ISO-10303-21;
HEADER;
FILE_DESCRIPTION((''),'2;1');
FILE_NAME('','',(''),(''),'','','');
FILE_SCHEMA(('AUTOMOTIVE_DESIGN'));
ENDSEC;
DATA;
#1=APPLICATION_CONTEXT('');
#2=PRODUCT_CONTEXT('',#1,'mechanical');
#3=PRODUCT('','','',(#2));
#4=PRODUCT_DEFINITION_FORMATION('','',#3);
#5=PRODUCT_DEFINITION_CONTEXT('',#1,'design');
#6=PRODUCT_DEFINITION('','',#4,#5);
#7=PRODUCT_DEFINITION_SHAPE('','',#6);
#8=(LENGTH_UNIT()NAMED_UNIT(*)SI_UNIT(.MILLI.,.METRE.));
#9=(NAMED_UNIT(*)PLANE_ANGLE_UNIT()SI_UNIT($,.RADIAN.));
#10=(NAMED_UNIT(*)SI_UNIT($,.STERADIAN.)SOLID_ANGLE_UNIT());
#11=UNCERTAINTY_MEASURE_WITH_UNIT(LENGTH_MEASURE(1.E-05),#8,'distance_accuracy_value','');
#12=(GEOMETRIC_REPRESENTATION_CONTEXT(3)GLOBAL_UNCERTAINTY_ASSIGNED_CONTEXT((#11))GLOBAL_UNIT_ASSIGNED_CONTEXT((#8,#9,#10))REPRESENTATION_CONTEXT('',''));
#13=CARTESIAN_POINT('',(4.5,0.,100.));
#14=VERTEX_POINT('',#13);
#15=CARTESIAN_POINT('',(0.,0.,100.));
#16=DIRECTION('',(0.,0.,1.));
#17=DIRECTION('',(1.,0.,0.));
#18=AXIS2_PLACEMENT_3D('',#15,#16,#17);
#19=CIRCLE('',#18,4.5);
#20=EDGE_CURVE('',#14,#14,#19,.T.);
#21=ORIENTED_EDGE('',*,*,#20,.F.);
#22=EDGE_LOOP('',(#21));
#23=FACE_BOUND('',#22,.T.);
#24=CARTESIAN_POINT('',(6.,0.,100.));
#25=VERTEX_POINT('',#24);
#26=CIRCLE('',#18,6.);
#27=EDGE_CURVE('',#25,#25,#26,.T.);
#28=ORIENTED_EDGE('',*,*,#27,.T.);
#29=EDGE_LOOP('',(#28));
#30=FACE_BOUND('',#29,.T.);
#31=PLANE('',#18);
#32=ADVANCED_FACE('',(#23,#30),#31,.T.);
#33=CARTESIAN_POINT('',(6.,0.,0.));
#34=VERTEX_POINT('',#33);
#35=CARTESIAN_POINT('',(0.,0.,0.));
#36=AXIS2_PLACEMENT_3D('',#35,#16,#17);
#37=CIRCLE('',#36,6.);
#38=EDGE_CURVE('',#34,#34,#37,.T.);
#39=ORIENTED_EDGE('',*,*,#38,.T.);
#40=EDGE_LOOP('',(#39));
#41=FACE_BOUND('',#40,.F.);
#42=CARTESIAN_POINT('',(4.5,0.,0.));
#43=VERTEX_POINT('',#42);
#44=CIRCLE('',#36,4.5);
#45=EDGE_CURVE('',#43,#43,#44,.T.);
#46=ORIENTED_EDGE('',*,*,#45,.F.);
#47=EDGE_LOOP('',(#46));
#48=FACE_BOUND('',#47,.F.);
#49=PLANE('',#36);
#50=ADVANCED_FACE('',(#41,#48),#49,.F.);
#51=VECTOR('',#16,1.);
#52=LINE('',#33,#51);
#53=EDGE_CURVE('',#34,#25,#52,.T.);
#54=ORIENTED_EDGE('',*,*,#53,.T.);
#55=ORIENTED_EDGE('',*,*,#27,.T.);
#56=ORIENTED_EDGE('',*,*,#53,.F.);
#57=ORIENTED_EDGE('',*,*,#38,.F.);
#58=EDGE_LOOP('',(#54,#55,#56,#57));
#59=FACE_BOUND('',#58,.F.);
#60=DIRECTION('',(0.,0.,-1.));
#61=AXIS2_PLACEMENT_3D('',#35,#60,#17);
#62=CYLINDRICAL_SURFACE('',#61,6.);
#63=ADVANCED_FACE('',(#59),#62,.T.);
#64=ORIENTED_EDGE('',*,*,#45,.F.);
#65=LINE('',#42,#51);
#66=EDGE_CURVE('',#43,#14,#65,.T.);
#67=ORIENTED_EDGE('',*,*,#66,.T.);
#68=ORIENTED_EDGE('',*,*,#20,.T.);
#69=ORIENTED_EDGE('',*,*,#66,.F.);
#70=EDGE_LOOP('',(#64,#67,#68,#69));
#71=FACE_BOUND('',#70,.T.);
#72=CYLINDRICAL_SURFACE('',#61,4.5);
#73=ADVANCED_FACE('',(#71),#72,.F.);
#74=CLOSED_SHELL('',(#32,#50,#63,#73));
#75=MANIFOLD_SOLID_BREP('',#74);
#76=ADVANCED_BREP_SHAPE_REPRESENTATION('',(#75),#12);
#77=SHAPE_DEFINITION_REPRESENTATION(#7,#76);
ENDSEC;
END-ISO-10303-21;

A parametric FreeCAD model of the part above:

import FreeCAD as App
import Part
import Sketcher

V = App.Vector

doc = App.newDocument("Part")
body = doc.addObject("PartDesign::Body", "Body")

# Sketch on XY plane
sketch1 = body.newObject("Sketcher::SketchObject", "Sketch")
sketch1.AttachmentSupport = (doc.getObject("XY_Plane"), [""])
sketch1.MapMode = "FlatFace"
sketch1.addGeometry([
    Part.Circle(V(0, 0, 0), V(0, 0, 1), 6),
    Part.Circle(V(0, 0, 0), V(0, 0, 1), 4.5),
], False)
sketch1.addConstraint([
    Sketcher.Constraint("Coincident", 0, 3, -1, 1),
    Sketcher.Constraint("Coincident", 1, 3, -1, 1),
    Sketcher.Constraint("Diameter", 0, 12.0),
    Sketcher.Constraint("Diameter", 1, 9.0),
])
pad1 = body.newObject("PartDesign::Pad", "Pad")
pad1.Profile = sketch1
pad1.Length = 100

doc.recompute()
